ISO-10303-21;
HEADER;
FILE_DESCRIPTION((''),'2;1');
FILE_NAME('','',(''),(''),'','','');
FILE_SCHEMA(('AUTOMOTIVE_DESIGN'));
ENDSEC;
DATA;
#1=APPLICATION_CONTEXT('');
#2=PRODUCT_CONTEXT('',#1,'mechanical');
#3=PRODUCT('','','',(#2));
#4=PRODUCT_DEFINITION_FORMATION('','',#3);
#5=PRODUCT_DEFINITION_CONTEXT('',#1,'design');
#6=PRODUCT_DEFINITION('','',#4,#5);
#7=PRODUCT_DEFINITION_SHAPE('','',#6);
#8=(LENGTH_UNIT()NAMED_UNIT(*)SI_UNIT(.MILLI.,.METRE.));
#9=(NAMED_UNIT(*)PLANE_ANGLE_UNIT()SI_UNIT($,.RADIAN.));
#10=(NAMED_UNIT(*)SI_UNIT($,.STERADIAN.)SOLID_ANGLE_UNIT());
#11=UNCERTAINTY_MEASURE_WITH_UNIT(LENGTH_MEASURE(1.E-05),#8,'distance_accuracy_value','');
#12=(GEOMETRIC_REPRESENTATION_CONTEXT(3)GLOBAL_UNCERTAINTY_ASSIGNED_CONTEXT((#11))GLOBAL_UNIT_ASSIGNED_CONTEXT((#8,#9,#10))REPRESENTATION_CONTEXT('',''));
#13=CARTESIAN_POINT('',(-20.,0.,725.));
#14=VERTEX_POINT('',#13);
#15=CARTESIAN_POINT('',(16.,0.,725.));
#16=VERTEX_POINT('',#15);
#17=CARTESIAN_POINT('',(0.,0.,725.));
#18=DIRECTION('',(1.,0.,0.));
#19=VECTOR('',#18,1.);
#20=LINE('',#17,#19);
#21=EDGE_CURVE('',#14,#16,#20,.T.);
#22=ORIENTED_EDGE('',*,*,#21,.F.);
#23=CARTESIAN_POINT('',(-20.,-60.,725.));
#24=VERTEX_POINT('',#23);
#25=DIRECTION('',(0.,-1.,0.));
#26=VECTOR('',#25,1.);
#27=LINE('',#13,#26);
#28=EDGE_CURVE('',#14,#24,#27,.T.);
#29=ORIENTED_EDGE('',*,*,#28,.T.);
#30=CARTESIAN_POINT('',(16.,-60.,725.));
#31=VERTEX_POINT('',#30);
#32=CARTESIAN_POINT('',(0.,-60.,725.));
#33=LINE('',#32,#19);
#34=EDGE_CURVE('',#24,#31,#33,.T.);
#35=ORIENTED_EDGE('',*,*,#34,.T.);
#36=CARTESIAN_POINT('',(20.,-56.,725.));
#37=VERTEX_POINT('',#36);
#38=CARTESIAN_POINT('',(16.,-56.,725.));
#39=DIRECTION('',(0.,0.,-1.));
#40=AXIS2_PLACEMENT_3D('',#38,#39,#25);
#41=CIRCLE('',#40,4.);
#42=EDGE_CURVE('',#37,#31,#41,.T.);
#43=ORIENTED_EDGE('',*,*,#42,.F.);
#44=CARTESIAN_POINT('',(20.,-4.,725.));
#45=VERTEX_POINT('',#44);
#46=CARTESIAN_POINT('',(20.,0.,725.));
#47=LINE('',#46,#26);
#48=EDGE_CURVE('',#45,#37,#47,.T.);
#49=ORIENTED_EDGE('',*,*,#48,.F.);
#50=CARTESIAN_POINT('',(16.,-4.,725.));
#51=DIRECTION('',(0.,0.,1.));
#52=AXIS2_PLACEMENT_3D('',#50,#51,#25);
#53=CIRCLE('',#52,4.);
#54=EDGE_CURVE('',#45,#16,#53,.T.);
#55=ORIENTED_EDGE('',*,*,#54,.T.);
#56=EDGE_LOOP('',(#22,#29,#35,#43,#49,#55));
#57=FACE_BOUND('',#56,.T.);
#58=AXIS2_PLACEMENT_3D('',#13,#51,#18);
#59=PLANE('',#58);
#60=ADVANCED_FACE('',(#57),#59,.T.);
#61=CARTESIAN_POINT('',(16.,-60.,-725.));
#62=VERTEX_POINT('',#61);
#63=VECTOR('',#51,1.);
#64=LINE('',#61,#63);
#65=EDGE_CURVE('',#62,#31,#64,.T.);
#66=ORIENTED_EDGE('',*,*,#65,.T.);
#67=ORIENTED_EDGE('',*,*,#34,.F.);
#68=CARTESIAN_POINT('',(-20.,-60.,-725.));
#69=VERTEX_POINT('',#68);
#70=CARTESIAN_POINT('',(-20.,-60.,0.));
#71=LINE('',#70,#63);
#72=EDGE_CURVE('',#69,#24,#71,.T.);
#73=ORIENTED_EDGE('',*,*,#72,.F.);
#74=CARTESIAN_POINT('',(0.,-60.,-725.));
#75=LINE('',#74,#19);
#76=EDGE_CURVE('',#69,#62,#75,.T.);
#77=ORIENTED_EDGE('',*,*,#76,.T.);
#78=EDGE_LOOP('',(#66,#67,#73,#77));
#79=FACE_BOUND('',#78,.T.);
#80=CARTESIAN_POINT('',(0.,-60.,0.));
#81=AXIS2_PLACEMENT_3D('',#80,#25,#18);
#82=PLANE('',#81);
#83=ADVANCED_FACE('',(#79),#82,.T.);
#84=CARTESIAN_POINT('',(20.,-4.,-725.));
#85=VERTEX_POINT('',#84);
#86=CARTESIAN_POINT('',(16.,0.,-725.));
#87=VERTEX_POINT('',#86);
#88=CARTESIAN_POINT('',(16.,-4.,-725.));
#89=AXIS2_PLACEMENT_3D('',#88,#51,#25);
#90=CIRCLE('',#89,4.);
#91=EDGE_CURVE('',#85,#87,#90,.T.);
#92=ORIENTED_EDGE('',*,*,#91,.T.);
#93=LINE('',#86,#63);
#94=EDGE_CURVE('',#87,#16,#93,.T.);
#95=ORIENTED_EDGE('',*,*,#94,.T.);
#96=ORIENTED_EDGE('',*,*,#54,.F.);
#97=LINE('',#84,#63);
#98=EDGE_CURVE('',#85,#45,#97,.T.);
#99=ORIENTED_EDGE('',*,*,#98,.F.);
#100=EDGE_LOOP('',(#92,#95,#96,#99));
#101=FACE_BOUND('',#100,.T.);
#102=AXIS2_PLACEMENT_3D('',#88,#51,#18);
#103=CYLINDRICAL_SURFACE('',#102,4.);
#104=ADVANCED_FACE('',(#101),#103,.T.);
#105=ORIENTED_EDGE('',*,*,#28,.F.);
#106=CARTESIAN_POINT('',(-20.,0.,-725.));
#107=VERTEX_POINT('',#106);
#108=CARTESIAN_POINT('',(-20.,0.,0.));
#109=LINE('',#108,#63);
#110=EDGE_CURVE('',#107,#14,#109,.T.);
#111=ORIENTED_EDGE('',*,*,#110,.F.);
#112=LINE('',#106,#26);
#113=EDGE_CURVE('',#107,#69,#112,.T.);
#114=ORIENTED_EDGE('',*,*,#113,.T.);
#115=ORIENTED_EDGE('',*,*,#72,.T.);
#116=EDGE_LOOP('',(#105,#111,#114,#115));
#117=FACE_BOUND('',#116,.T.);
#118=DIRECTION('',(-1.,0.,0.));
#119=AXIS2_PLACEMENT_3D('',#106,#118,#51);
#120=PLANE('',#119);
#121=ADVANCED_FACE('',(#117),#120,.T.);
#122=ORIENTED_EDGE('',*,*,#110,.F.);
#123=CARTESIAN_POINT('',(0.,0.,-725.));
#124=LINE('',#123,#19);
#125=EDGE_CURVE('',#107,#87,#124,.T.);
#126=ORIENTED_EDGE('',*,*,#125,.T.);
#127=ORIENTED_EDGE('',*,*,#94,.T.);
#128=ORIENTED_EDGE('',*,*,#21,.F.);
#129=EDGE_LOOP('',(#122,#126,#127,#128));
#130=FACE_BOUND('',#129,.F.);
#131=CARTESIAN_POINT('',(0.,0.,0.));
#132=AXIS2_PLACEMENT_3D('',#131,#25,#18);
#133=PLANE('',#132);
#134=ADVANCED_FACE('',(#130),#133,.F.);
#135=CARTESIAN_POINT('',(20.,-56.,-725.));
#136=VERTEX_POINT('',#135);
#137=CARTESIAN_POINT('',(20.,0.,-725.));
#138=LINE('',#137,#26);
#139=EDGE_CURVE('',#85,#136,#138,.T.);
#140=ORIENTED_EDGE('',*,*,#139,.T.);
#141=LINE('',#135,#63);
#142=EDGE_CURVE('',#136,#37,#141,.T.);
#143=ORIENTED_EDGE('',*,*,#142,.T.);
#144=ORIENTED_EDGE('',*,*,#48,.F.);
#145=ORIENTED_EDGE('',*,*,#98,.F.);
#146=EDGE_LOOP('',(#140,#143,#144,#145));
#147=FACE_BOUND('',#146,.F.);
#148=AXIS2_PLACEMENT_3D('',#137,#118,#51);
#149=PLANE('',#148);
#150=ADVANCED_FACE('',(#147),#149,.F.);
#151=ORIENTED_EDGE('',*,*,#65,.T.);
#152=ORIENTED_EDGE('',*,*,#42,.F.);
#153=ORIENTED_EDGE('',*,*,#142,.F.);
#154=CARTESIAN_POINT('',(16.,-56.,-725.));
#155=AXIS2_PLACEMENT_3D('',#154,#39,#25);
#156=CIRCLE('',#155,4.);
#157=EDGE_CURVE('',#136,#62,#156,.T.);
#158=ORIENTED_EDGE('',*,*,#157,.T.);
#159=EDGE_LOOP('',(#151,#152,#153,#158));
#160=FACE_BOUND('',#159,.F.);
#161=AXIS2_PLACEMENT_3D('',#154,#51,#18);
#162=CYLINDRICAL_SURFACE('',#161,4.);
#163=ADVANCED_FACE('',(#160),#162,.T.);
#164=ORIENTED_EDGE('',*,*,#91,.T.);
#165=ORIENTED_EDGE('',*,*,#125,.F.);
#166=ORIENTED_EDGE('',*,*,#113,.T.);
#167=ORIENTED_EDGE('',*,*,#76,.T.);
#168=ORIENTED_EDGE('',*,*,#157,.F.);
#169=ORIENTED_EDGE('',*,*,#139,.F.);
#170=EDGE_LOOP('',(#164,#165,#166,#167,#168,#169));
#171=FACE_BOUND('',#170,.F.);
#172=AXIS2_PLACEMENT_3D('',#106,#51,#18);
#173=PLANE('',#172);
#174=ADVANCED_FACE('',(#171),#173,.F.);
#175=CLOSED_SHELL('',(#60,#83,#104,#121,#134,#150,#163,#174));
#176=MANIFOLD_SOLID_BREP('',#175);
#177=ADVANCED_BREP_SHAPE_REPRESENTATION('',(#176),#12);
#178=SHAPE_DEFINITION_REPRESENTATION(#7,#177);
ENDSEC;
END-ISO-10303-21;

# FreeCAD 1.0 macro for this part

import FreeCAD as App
import Part
import Sketcher

V = App.Vector
Q = App.Units.Quantity


def edges_at(feature, points):
    """Names of the edges that pass closest to the given points."""
    edges = feature.Shape.Edges
    near = lambda p: min(range(len(edges)), key=lambda i: edges[i].distToShape(Part.Vertex(*p))[0])
    return sorted({f"Edge{near(p) + 1}" for p in points})


def add_polygon(sketch, points):
    """Adds a closed chain of lines whose ends are joined by coincident constraints."""
    first, n = sketch.GeometryCount, len(points)
    for a, b in zip(points, points[1:] + points[:1]):
        sketch.addGeometry(Part.LineSegment(App.Vector(*a, 0), App.Vector(*b, 0)), False)
    for i in range(n):
        sketch.addConstraint(Sketcher.Constraint("Coincident", first + i, 2, first + (i + 1) % n, 1))

doc = App.newDocument("Part")
params = doc.addObject("Spreadsheet::Sheet", "Params")
for row, (alias, value) in enumerate([
    ("sketch1_width", "40 mm"),
    ("sketch1_height", "1450 mm"),
    ("pad1_length", "60 mm"),
    ("fillet_radius", "4 mm"),
    ("fillet2_radius", "4 mm"),
], start=1):
    params.set(f"A{row}", alias)
    params.set(f"B{row}", "=" + value)
    params.setAlias(f"B{row}", alias)

body = doc.addObject("PartDesign::Body", "Body")

sketch1 = body.newObject("Sketcher::SketchObject", "Sketch")
sketch1.AttachmentSupport = (doc.getObject("XZ_Plane"), [""])
sketch1.MapMode = "FlatFace"
add_polygon(sketch1, [(-20, 725), (-20, -725), (20, -725), (20, 725)])
sketch1.addConstraint([
    Sketcher.Constraint("Vertical", 0),
    Sketcher.Constraint("Horizontal", 1),
    Sketcher.Constraint("Vertical", 2),
    Sketcher.Constraint("Horizontal", 3),
    Sketcher.Constraint("Symmetric", 0, 2, 2, 2, -1, 1),
    Sketcher.Constraint("DistanceX", 1, 1, 1, 2, Q("40 mm")),
    Sketcher.Constraint("DistanceY", 0, 2, 0, 1, Q("1450 mm")),
])
sketch1.setExpression("Constraints[9]", "Params.sketch1_width")
sketch1.setExpression("Constraints[10]", "Params.sketch1_height")
pad1 = body.newObject("PartDesign::Pad", "Pad")
pad1.Profile = sketch1
pad1.setExpression("Length", "Params.pad1_length")
doc.recompute()

fillet = body.newObject("PartDesign::Fillet", "Fillet")
fillet.Base = (pad1, edges_at(pad1, [(20, -60, 0)]))
fillet.setExpression("Radius", "Params.fillet_radius")
doc.recompute()

fillet2 = body.newObject("PartDesign::Fillet", "Fillet001")
fillet2.Base = (fillet, edges_at(fillet, [(20, 0, 0)]))
fillet2.setExpression("Radius", "Params.fillet2_radius")

doc.recompute()
